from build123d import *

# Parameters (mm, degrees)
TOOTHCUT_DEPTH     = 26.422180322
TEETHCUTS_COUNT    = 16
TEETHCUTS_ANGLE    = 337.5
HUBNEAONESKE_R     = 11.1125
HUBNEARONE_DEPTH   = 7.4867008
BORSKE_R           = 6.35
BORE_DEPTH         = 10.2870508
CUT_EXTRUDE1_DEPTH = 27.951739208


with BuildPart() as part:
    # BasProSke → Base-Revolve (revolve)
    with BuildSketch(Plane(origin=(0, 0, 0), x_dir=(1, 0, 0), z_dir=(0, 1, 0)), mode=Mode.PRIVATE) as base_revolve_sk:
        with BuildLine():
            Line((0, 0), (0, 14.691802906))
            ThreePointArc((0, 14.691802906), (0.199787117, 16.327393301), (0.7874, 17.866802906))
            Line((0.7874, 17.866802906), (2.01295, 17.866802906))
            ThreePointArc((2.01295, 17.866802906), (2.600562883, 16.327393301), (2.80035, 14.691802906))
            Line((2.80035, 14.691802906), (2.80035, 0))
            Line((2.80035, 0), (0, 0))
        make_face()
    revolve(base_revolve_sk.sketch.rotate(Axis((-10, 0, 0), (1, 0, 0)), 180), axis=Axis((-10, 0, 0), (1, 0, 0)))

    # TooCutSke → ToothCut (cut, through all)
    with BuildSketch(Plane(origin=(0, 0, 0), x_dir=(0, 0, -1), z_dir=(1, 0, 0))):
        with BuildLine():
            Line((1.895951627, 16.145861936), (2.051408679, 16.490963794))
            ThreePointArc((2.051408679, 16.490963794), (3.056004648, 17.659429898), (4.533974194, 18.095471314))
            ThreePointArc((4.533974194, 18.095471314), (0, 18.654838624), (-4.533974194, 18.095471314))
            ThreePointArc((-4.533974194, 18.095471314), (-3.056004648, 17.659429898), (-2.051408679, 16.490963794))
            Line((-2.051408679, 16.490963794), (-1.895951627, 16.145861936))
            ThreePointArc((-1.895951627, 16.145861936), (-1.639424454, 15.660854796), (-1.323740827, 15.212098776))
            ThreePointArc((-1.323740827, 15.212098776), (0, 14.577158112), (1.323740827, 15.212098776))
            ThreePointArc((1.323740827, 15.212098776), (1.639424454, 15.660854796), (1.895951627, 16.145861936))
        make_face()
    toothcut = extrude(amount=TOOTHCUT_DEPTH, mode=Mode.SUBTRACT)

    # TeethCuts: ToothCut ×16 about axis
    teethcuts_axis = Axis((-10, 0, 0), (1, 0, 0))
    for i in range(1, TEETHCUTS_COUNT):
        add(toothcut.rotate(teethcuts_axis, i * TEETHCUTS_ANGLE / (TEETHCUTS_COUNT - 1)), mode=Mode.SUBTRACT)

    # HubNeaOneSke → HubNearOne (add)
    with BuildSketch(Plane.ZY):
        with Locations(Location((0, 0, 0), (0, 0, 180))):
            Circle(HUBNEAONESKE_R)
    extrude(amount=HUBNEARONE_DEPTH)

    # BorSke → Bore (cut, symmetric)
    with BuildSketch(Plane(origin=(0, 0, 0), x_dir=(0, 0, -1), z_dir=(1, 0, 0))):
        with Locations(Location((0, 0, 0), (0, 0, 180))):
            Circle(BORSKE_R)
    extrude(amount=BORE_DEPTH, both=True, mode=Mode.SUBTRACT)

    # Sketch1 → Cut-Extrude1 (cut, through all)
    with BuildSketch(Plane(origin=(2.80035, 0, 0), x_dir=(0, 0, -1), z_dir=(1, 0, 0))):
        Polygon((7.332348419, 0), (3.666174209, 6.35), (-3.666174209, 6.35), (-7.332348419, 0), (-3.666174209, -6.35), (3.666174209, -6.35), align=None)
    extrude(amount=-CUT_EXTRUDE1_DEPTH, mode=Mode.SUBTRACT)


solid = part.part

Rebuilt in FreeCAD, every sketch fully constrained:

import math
import FreeCAD as App
import Part
import Sketcher
from FreeCAD import Vector
Q = App.Units.Quantity

doc = App.newDocument("Part")
params = doc.addObject("Spreadsheet::Sheet", "Params")
for row, (alias, value) in enumerate([
    ("revolution_angle", "360 deg"),
    ("sketch3_diameter", "0.875 in"),
    ("pad1_length", "7.486701 mm"),
    ("sketch4_diameter", "0.5 in"),
    ("pocket2_length", "20.574102 mm"),
], start=1):
    params.set(f"A{row}", alias)
    params.set(f"B{row}", "=" + value)
    params.setAlias(f"B{row}", alias)

body = doc.addObject("PartDesign::Body", "Body")

# Sketch on XZ plane
sketch1 = body.newObject("Sketcher::SketchObject", "Sketch")
sketch1.AttachmentSupport = (doc.getObject("XZ_Plane"), [""])
sketch1.MapMode = "FlatFace"
sketch1.addGeometry(Part.LineSegment(Vector(0, -14.7, 0), Vector(0, 0, 0)), False)
sketch1.addGeometry(Part.LineSegment(Vector(0, 0, 0), Vector(2.8, 0, 0)), False)
sketch1.addGeometry(Part.LineSegment(Vector(2.8, 0, 0), Vector(2.8, -14.7, 0)), False)
sketch1.addGeometry(Part.ArcOfCircle(Part.Circle(Vector(-4, -14.7, 0), Vector(0, 0, 1), 6.8), math.radians(-28), math.radians(0)), False)
sketch1.addGeometry(Part.LineSegment(Vector(2, -17.9, 0), Vector(0.8, -17.9, 0)), False)
sketch1.addGeometry(Part.ArcOfCircle(Part.Circle(Vector(6.8, -14.7, 0), Vector(0, 0, 1), 6.8), math.radians(180), math.radians(208)), False)
sketch1.addConstraint(Sketcher.Constraint("Coincident", 0, 2, 1, 1))
sketch1.addConstraint(Sketcher.Constraint("Coincident", 1, 2, 2, 1))
sketch1.addConstraint(Sketcher.Constraint("Tangent", 2, 2, 3, 2))
sketch1.addConstraint(Sketcher.Constraint("Coincident", 3, 1, 4, 1))
sketch1.addConstraint(Sketcher.Constraint("Coincident", 4, 2, 5, 2))
sketch1.addConstraint(Sketcher.Constraint("Tangent", 5, 1, 0, 1))
sketch1.addConstraint(Sketcher.Constraint("Vertical", 0))
sketch1.addConstraint(Sketcher.Constraint("Horizontal", 1))
sketch1.addConstraint(Sketcher.Constraint("Vertical", 2))
sketch1.addConstraint(Sketcher.Constraint("Horizontal", 4))
sketch1.addConstraint(Sketcher.Constraint("Coincident", 0, 2, -1, 1))
sketch1.addConstraint(Sketcher.Constraint("Equal", 3, 5))
sketch1.addConstraint(Sketcher.Constraint("Horizontal", 3, 3, 5, 3))
sketch1.addConstraint(Sketcher.Constraint("DistanceX", -1, 1, 4, 2, Q("0.031 in")))
sketch1.addConstraint(Sketcher.Constraint("Radius", 3, 6.79491))
sketch1.addConstraint(Sketcher.Constraint("DistanceX", 1, 1, 1, 2, 2.80035))
sketch1.addConstraint(Sketcher.Constraint("DistanceY", 0, 1, 0, 2, 14.691803))
revolution = body.newObject("PartDesign::Revolution", "Revolution")
revolution.Profile = sketch1
revolution.ReferenceAxis = (sketch1, ["H_Axis"])
revolution.setExpression("Angle", "Params.revolution_angle")

# Sketch on YZ plane
sketch2 = body.newObject("Sketcher::SketchObject", "Sketch001")
sketch2.AttachmentSupport = (doc.getObject("YZ_Plane"), [""])
sketch2.MapMode = "FlatFace"
sketch2.addGeometry(Part.LineSegment(Vector(16.15, -1.9, 0), Vector(16.49, -2.05, 0)), False)
sketch2.addGeometry(Part.ArcOfCircle(Part.Circle(Vector(15.37, -4.53, 0), Vector(0, 0, 1), 2.72), math.radians(0), math.radians(66)), False)
sketch2.addGeometry(Part.ArcOfCircle(Part.Circle(Vector(0, 0, 0), Vector(0, 0, 1), 18.65), math.radians(-14), math.radians(14)), False)
sketch2.addGeometry(Part.ArcOfCircle(Part.Circle(Vector(15.37, 4.53, 0), Vector(0, 0, 1), 2.72), math.radians(-66), math.radians(0)), False)
sketch2.addGeometry(Part.LineSegment(Vector(16.49, 2.05, 0), Vector(16.15, 1.9, 0)), False)
sketch2.addGeometry(Part.ArcOfCircle(Part.Circle(Vector(17.93, -2.06, 0), Vector(0, 0, 1), 4.34), math.radians(114.25), math.radians(128.75)), False)
sketch2.addGeometry(Part.ArcOfCircle(Part.Circle(Vector(16.27, 0, 0), Vector(0, 0, 1), 1.7), math.radians(129), math.radians(231)), False)
sketch2.addGeometry(Part.ArcOfCircle(Part.Circle(Vector(17.93, 2.06, 0), Vector(0, 0, 1), 4.34), math.radians(-128.75), math.radians(-114.25)), False)
sketch2.addConstraint(Sketcher.Constraint("Tangent", 0, 2, 1, 2))
sketch2.addConstraint(Sketcher.Constraint("Coincident", 1, 1, 2, 1))
sketch2.addConstraint(Sketcher.Constraint("Coincident", 2, 2, 3, 2))
sketch2.addConstraint(Sketcher.Constraint("Tangent", 3, 1, 4, 1))
sketch2.addConstraint(Sketcher.Constraint("Tangent", 4, 2, 5, 1))
sketch2.addConstraint(Sketcher.Constraint("Tangent", 5, 2, 6, 1))
sketch2.addConstraint(Sketcher.Constraint("Tangent", 6, 2, 7, 1))
sketch2.addConstraint(Sketcher.Constraint("Tangent", 7, 2, 0, 1))
sketch2.addConstraint(Sketcher.Constraint("Coincident", 2, 3, -1, 1))
sketch2.addConstraint(Sketcher.Constraint("Equal", 1, 3))
sketch2.addConstraint(Sketcher.Constraint("Equal", 5, 7))
sketch2.addConstraint(Sketcher.Constraint("Symmetric", 1, 3, 3, 3, -1))
sketch2.addConstraint(Sketcher.Constraint("Symmetric", 5, 3, 7, 3, -1))
sketch2.addConstraint(Sketcher.Constraint("Horizontal", 3, 3, 2, 2))
sketch2.addConstraint(Sketcher.Constraint("Angle", 0, Q("-24.25 deg")))
sketch2.addConstraint(Sketcher.Constraint("Radius", 1, 2.722822))
sketch2.addConstraint(Sketcher.Constraint("Radius", 2, 18.654839))
sketch2.addConstraint(Sketcher.Constraint("Radius", 5, 4.338955))
sketch2.addConstraint(Sketcher.Constraint("Radius", 6, 1.697355))
sketch2.addConstraint(Sketcher.Constraint("Distance", 0, 0.3785))
sketch2.addConstraint(Sketcher.Constraint("DistanceX", -1, 1, 5, 2, 15.212099))
pocket1 = body.newObject("PartDesign::Pocket", "Pocket")
pocket1.Profile = sketch2
pocket1.Type = "ThroughAll"
pocket1.Reversed = True
doc.recompute()

polarpattern = body.newObject("PartDesign::PolarPattern", "PolarPattern")
polarpattern.Originals = [pocket1]
polarpattern.Axis = (doc.getObject("X_Axis"), [""])
polarpattern.Angle = 360
polarpattern.Occurrences = 16
body.Tip = polarpattern

# Sketch on YZ plane
sketch3 = body.newObject("Sketcher::SketchObject", "Sketch002")
sketch3.AttachmentSupport = (doc.getObject("YZ_Plane"), [""])
sketch3.MapMode = "FlatFace"
sketch3.addGeometry(Part.Circle(Vector(0, 0, 0), Vector(0, 0, 1), 11), False)
sketch3.addConstraint(Sketcher.Constraint("Coincident", 0, 3, -1, 1))
sketch3.addConstraint(Sketcher.Constraint("Diameter", 0, Q("0.875 in")))
sketch3.setExpression("Constraints[1]", "Params.sketch3_diameter")
pad1 = body.newObject("PartDesign::Pad", "Pad")
pad1.Profile = sketch3
pad1.setExpression("Length", "Params.pad1_length")
pad1.Reversed = True

# Sketch on YZ plane
sketch4 = body.newObject("Sketcher::SketchObject", "Sketch003")
sketch4.AttachmentSupport = (doc.getObject("YZ_Plane"), [""])
sketch4.MapMode = "FlatFace"
sketch4.addGeometry(Part.Circle(Vector(0, 0, 0), Vector(0, 0, 1), 6), False)
sketch4.addConstraint(Sketcher.Constraint("Coincident", 0, 3, -1, 1))
sketch4.addConstraint(Sketcher.Constraint("Diameter", 0, Q("0.5 in")))
sketch4.setExpression("Constraints[1]", "Params.sketch4_diameter")
pocket2 = body.newObject("PartDesign::Pocket", "Pocket001")
pocket2.Profile = sketch4
pocket2.setExpression("Length", "Params.pocket2_length")
pocket2.Midplane = True

# Sketch on YZ plane
sketch5 = body.newObject("Sketcher::SketchObject", "Sketch004")
sketch5.AttachmentSupport = (doc.getObject("YZ_Plane"), [""])
sketch5.MapMode = "FlatFace"
sketch5.AttachmentOffset = App.Placement(Vector(0, 0, 2.80035), App.Rotation())
sketch5.addGeometry(Part.LineSegment(Vector(0, -7, 0), Vector(6, -4, 0)), False)
sketch5.addGeometry(Part.LineSegment(Vector(6, -4, 0), Vector(6, 4, 0)), False)
sketch5.addGeometry(Part.LineSegment(Vector(6, 4, 0), Vector(0, 7, 0)), False)
sketch5.addGeometry(Part.LineSegment(Vector(0, 7, 0), Vector(-6, 4, 0)), False)
sketch5.addGeometry(Part.LineSegment(Vector(-6, 4, 0), Vector(-6, -4, 0)), False)
sketch5.addGeometry(Part.LineSegment(Vector(-6, -4, 0), Vector(0, -7, 0)), False)
sketch5.addConstraint(Sketcher.Constraint("Coincident", 0, 2, 1, 1))
sketch5.addConstraint(Sketcher.Constraint("Coincident", 1, 2, 2, 1))
sketch5.addConstraint(Sketcher.Constraint("Coincident", 2, 2, 3, 1))
sketch5.addConstraint(Sketcher.Constraint("Coincident", 3, 2, 4, 1))
sketch5.addConstraint(Sketcher.Constraint("Coincident", 4, 2, 5, 1))
sketch5.addConstraint(Sketcher.Constraint("Coincident", 5, 2, 0, 1))
sketch5.addConstraint(Sketcher.Constraint("Vertical", 1))
sketch5.addConstraint(Sketcher.Constraint("Vertical", 4))
sketch5.addConstraint(Sketcher.Constraint("Symmetric", 0, 2, 3, 2, -1, 1))
sketch5.addConstraint(Sketcher.Constraint("Symmetric", 2, 2, 5, 2, -1, 1))
sketch5.addConstraint(Sketcher.Constraint("PointOnObject", 2, 2, -2))
sketch5.addConstraint(Sketcher.Constraint("Parallel", 2, 5))
sketch5.addConstraint(Sketcher.Constraint("Horizontal", 1, 2, 3, 2))
sketch5.addConstraint(Sketcher.Constraint("Angle", 0, Q("30 deg")))
sketch5.addConstraint(Sketcher.Constraint("DistanceX", 3, 2, 1, 2, Q("0.5 in")))
sketch5.addConstraint(Sketcher.Constraint("DistanceY", 1, 1, 1, 2, 7.332348))
pocket3 = body.newObject("PartDesign::Pocket", "Pocket002")
pocket3.Profile = sketch5
pocket3.Type = "ThroughAll"

doc.recompute()
